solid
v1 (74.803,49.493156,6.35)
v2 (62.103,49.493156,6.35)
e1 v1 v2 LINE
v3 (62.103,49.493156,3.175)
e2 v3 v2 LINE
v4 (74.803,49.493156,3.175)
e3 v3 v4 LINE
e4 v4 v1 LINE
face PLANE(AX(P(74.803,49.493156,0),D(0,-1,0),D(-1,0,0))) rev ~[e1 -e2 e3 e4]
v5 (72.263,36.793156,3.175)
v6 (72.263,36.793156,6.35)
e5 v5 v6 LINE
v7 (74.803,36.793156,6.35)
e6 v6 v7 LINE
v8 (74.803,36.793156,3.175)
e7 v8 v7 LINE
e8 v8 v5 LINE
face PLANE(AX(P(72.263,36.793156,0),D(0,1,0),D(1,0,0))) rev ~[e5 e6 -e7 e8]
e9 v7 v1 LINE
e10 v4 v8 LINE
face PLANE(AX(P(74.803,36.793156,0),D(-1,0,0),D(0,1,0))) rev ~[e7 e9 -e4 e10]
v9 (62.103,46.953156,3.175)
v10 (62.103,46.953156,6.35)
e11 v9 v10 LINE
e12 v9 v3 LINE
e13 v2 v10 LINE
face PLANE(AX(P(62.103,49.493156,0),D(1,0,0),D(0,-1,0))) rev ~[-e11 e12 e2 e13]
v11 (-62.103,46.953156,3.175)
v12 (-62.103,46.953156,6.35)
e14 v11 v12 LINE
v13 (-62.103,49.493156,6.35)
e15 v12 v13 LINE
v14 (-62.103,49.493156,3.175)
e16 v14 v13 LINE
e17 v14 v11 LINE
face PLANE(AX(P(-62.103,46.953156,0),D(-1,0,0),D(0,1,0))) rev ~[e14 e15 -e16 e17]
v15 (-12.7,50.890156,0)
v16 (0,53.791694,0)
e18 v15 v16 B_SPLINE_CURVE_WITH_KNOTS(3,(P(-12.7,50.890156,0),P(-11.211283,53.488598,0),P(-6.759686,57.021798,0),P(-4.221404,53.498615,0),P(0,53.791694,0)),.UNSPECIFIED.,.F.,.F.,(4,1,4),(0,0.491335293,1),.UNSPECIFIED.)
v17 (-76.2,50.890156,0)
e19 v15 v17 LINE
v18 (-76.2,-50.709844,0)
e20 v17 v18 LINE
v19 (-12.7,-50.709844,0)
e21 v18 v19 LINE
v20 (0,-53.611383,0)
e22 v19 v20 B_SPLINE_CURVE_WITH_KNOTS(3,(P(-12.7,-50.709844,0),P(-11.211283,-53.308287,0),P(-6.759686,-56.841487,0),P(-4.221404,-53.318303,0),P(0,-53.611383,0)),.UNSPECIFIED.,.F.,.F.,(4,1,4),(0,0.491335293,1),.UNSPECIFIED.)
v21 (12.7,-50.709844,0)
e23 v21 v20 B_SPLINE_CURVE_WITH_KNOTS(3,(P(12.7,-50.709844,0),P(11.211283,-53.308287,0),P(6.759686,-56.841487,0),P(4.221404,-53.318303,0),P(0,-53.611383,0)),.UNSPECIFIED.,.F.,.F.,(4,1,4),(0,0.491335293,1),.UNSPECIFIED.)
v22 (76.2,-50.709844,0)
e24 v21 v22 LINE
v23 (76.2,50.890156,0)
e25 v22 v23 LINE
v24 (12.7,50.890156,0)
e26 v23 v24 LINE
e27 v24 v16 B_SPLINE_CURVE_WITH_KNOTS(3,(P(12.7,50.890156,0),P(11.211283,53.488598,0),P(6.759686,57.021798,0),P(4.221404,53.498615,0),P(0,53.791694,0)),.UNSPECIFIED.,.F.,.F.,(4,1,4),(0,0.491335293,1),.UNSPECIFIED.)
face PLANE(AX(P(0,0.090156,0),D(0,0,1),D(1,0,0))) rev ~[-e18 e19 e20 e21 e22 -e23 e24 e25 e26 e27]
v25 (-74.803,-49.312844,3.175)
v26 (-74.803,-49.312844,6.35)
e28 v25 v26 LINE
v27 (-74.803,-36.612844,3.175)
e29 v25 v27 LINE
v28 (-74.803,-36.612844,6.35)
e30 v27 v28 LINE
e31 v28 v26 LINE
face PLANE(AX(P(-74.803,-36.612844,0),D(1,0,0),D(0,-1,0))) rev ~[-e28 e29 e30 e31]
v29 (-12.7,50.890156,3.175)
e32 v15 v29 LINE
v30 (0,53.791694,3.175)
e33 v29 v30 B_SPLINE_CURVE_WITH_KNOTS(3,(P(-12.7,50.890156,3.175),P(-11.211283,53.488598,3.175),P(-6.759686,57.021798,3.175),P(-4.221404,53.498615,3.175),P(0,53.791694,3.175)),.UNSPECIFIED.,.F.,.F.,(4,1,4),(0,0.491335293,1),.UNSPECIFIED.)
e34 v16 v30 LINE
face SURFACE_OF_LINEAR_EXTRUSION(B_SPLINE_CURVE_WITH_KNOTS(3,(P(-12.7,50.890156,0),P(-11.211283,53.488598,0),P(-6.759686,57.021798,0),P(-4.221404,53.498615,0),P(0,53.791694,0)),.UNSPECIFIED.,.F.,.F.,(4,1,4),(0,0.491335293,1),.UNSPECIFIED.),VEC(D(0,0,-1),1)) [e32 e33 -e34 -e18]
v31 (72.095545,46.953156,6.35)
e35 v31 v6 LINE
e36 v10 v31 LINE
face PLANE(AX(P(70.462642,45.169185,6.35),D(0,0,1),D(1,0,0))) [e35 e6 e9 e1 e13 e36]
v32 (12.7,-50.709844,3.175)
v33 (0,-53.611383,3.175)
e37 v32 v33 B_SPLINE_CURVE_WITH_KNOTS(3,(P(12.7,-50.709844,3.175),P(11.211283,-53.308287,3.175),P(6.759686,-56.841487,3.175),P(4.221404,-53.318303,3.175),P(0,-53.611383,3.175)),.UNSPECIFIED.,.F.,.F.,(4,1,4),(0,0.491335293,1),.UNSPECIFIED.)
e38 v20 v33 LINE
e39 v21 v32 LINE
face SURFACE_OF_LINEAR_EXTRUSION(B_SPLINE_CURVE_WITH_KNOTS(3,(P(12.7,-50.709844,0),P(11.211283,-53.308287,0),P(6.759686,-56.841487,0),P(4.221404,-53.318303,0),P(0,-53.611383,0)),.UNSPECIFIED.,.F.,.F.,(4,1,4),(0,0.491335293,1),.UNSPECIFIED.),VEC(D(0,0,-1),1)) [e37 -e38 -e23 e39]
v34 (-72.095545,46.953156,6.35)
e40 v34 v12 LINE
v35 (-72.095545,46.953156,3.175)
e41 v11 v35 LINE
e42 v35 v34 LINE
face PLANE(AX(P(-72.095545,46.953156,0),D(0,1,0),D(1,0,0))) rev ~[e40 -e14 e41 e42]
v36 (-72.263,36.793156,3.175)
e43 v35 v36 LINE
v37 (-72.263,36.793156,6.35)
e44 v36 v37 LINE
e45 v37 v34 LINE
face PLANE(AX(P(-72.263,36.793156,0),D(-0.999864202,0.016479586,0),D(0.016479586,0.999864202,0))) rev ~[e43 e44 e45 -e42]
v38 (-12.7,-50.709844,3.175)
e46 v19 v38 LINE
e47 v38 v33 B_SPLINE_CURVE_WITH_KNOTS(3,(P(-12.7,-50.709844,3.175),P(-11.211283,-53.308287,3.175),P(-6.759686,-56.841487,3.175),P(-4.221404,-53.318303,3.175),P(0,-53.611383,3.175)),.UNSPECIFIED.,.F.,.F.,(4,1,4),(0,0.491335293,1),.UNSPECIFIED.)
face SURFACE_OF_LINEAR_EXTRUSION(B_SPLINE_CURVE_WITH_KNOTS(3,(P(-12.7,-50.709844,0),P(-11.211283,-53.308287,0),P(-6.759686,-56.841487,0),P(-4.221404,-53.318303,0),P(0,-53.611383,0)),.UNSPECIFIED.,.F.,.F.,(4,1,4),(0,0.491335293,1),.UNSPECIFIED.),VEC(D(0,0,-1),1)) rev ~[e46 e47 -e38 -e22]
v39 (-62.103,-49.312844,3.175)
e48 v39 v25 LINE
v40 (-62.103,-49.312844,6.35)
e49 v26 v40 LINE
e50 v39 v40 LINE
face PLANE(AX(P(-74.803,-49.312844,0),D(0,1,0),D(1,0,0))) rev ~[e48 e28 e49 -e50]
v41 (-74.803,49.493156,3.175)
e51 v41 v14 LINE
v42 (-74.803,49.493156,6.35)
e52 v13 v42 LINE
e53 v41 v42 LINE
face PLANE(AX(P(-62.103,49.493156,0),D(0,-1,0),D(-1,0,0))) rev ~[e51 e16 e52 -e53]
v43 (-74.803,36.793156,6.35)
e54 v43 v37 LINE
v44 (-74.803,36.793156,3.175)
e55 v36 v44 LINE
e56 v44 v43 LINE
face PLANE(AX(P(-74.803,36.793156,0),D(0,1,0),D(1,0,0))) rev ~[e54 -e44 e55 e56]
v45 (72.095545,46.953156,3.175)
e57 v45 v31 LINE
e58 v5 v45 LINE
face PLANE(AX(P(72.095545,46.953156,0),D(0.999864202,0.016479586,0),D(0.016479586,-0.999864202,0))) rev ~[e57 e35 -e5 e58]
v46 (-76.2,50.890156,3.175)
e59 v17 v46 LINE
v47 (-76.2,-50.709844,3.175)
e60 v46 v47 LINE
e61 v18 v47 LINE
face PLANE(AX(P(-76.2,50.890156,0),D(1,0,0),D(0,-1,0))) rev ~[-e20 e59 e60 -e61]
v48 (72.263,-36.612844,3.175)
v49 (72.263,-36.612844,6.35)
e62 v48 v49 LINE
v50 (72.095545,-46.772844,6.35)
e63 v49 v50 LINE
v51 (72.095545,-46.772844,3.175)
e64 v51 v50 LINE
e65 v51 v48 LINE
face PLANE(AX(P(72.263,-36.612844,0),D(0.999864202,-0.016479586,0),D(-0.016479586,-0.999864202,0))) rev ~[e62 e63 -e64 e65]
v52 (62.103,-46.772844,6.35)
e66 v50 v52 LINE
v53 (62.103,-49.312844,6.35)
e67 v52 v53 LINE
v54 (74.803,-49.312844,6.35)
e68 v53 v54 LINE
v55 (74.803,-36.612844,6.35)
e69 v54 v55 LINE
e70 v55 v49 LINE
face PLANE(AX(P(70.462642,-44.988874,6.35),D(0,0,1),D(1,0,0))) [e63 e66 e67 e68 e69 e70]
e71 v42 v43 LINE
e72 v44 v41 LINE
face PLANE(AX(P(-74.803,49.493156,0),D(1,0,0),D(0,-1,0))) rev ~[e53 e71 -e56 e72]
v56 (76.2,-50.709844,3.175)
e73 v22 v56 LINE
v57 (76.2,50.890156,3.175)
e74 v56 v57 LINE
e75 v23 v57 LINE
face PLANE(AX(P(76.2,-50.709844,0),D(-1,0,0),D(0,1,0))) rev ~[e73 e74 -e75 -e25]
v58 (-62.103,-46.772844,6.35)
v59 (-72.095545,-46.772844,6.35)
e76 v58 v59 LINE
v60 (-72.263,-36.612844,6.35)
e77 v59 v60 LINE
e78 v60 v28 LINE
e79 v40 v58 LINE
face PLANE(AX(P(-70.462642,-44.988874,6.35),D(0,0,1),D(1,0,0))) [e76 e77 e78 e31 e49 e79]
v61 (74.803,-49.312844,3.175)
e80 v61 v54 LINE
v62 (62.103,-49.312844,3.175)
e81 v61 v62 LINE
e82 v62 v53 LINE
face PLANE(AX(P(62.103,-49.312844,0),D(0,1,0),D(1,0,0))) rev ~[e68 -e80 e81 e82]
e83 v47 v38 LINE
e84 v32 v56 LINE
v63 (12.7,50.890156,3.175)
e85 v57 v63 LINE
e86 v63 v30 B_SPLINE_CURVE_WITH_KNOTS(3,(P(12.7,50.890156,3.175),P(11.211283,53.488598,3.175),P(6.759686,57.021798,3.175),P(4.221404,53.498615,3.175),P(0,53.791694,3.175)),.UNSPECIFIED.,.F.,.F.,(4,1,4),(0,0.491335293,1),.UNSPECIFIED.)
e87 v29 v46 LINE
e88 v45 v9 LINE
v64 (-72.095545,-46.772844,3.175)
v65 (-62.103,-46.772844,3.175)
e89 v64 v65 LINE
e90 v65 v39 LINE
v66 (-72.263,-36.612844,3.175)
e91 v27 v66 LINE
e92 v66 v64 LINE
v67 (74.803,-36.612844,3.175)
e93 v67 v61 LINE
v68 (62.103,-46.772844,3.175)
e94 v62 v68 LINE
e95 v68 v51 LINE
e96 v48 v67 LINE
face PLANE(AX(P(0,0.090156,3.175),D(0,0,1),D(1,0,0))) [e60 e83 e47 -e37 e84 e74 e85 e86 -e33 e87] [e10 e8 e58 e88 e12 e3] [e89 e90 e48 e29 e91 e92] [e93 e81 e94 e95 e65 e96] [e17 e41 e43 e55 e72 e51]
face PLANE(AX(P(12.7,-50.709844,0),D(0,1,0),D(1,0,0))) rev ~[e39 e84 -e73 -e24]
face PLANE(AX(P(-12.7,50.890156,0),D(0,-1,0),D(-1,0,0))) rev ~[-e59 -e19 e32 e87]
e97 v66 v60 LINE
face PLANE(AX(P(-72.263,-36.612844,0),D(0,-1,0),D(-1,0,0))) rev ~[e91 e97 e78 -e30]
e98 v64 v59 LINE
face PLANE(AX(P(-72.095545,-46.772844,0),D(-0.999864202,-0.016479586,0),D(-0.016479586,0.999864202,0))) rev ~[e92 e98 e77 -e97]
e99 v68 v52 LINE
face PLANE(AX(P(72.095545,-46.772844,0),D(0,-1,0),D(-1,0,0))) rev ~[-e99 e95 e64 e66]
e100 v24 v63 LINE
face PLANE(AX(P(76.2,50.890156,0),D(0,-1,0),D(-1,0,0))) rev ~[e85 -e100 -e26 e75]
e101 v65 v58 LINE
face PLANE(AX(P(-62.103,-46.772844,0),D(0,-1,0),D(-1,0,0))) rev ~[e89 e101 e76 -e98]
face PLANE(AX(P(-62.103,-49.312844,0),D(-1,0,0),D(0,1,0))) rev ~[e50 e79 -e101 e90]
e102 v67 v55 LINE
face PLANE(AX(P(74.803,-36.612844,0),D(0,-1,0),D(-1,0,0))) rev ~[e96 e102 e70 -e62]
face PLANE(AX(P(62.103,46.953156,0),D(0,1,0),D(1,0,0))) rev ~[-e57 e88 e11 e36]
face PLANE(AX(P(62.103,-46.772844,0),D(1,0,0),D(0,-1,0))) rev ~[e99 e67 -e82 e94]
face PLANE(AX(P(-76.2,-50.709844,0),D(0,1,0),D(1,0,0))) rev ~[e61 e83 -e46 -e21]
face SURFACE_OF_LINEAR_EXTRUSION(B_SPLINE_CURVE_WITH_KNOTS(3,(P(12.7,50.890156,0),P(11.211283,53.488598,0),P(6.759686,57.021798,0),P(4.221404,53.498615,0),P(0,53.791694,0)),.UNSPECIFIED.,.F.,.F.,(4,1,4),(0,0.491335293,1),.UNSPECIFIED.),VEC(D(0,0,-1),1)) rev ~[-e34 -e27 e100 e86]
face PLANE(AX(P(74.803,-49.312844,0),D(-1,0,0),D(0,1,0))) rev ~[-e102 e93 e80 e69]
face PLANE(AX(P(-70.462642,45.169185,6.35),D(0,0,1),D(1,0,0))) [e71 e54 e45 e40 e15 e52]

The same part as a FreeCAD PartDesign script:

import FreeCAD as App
import Part
import Sketcher

V = App.Vector
Q = App.Units.Quantity


def add_polygon(sketch, points):
    """Adds a closed chain of lines whose ends are joined by coincident constraints."""
    first, n = sketch.GeometryCount, len(points)
    for a, b in zip(points, points[1:] + points[:1]):
        sketch.addGeometry(Part.LineSegment(App.Vector(*a, 0), App.Vector(*b, 0)), False)
    for i in range(n):
        sketch.addConstraint(Sketcher.Constraint("Coincident", first + i, 2, first + (i + 1) % n, 1))

doc = App.newDocument("Part")
params = doc.addObject("Spreadsheet::Sheet", "Params")
for row, (alias, value) in enumerate([
    ("sketch1_width", "2.5 in"),
    ("sketch1_width2", "0.5 in"),
    ("sketch1_width3", "0.1 in"),
    ("pad1_length", "0.125 in"),
    ("sketch2_width", "0.5 in"),
    ("sketch2_width2", "0.1 in"),
    ("pad2_length", "0.25 in"),
], start=1):
    params.set(f"A{row}", alias)
    params.set(f"B{row}", "=" + value)
    params.setAlias(f"B{row}", alias)

body = doc.addObject("PartDesign::Body", "Body")

# Sketch on XY plane
sketch1 = body.newObject("Sketcher::SketchObject", "Sketch")
sketch1.AttachmentSupport = (doc.getObject("XY_Plane"), [""])
sketch1.MapMode = "FlatFace"
sketch1.addGeometry(Part.LineSegment(V(-76.2, 50.890156, 0), V(-76.2, -50.709844, 0)), False)  # 0
sketch1.addGeometry(Part.LineSegment(V(-76.2, -50.709844, 0), V(-12.7, -50.709844, 0)), False)  # 1
sketch1.addGeometry(Part.BSplineCurve([V(-12.7, -50.709844, 0), V(-11.211283, -53.308287, 0), V(-6.759686, -56.841487, 0), V(-4.221404, -53.318303, 0), V(0, -53.611383, 0)], [4, 1, 4], [0, 0.491335293, 1], False, 3, [1, 1, 1, 1, 1], False), False)  # 2
sketch1.addGeometry(Part.BSplineCurve([V(12.7, -50.709844, 0), V(11.211283, -53.308287, 0), V(6.759686, -56.841487, 0), V(4.221404, -53.318303, 0), V(0, -53.611383, 0)], [4, 1, 4], [0, 0.491335293, 1], False, 3, [1, 1, 1, 1, 1], False), False)  # 3
sketch1.addGeometry(Part.LineSegment(V(12.7, -50.709844, 0), V(76.2, -50.709844, 0)), False)  # 4
sketch1.addGeometry(Part.LineSegment(V(76.2, -50.709844, 0), V(76.2, 50.890156, 0)), False)  # 5
sketch1.addGeometry(Part.LineSegment(V(76.2, 50.890156, 0), V(12.7, 50.890156, 0)), False)  # 6
sketch1.addGeometry(Part.BSplineCurve([V(12.7, 50.890156, 0), V(11.211283, 53.488598, 0), V(6.759686, 57.021798, 0), V(4.221404, 53.498615, 0), V(0, 53.791694, 0)], [4, 1, 4], [0, 0.491335293, 1], False, 3, [1, 1, 1, 1, 1], False), False)  # 7
sketch1.addGeometry(Part.BSplineCurve([V(-12.7, 50.890156, 0), V(-11.211283, 53.488598, 0), V(-6.759686, 57.021798, 0), V(-4.221404, 53.498615, 0), V(0, 53.791694, 0)], [4, 1, 4], [0, 0.491335293, 1], False, 3, [1, 1, 1, 1, 1], False), False)  # 8
sketch1.addGeometry(Part.LineSegment(V(-12.7, 50.890156, 0), V(-76.2, 50.890156, 0)), False)  # 9
add_polygon(sketch1, [(-62.103, -46.772844), (-62.103, -49.312844), (-74.803, -49.312844), (-74.803, -36.612844), (-72.263, -36.612844), (-72.095545, -46.772844)])  # lines 10-15
add_polygon(sketch1, [(72.263, -36.612844), (74.803, -36.612844), (74.803, -49.312844), (62.103, -49.312844), (62.103, -46.772844), (72.095545, -46.772844)])  # lines 16-21
add_polygon(sketch1, [(-72.263, 36.793156), (-74.803, 36.793156), (-74.803, 49.493156), (-62.103, 49.493156), (-62.103, 46.953156), (-72.095545, 46.953156)])  # lines 22-27
add_polygon(sketch1, [(74.803, 36.793156), (72.263, 36.793156), (72.095545, 46.953156), (62.103, 46.953156), (62.103, 49.493156), (74.803, 49.493156)])  # lines 28-33
sketch1.addConstraint([
    Sketcher.Constraint("Block", 2),
    Sketcher.Constraint("Block", 3),
    Sketcher.Constraint("Block", 7),
    Sketcher.Constraint("Block", 8),
    Sketcher.Constraint("Coincident", 0, 2, 1, 1),
    Sketcher.Constraint("Coincident", 1, 2, 2, 1),
    Sketcher.Constraint("Coincident", 3, 1, 4, 1),
    Sketcher.Constraint("Coincident", 4, 2, 5, 1),
    Sketcher.Constraint("Coincident", 5, 2, 6, 1),
    Sketcher.Constraint("Coincident", 6, 2, 7, 1),
    Sketcher.Constraint("Coincident", 8, 1, 9, 1),
    Sketcher.Constraint("Coincident", 9, 2, 0, 1),
    Sketcher.Constraint("Vertical", 0),
    Sketcher.Constraint("Horizontal", 1),
    Sketcher.Constraint("Horizontal", 4),
    Sketcher.Constraint("Vertical", 5),
    Sketcher.Constraint("Horizontal", 6),
    Sketcher.Constraint("Horizontal", 9),
    Sketcher.Constraint("Vertical", 10),
    Sketcher.Constraint("Horizontal", 11),
    Sketcher.Constraint("Vertical", 12),
    Sketcher.Constraint("Horizontal", 13),
    Sketcher.Constraint("Horizontal", 15),
    Sketcher.Constraint("Horizontal", 16),
    Sketcher.Constraint("Vertical", 17),
    Sketcher.Constraint("Horizontal", 18),
    Sketcher.Constraint("Vertical", 19),
    Sketcher.Constraint("Horizontal", 20),
    Sketcher.Constraint("Horizontal", 22),
    Sketcher.Constraint("Vertical", 23),
    Sketcher.Constraint("Horizontal", 24),
    Sketcher.Constraint("Vertical", 25),
    Sketcher.Constraint("Horizontal", 26),
    Sketcher.Constraint("Horizontal", 28),
    Sketcher.Constraint("Horizontal", 30),
    Sketcher.Constraint("Vertical", 31),
    Sketcher.Constraint("Horizontal", 32),
    Sketcher.Constraint("Vertical", 33),
    Sketcher.Constraint("Symmetric", 12, 2, 16, 2, -2),
    Sketcher.Constraint("Symmetric", 10, 2, 18, 2, -2),
    Sketcher.Constraint("Symmetric", 14, 2, 20, 2, -2),
    Sketcher.Constraint("Symmetric", 27, 2, 28, 2, -2),
    Sketcher.Constraint("Symmetric", 26, 2, 29, 2, -2),
    Sketcher.Constraint("Symmetric", 24, 2, 31, 2, -2),
    Sketcher.Constraint("Parallel", 21, 27),
    Sketcher.Constraint("Parallel", 14, 29),
    Sketcher.Constraint("Vertical", 12, 2, 22, 2),
    Sketcher.Constraint("Vertical", 15, 2, 24, 2),
    Sketcher.Constraint("Vertical", 14, 2, 26, 2),
    Sketcher.Constraint("Vertical", 13, 2, 27, 2),
    Sketcher.Constraint("Vertical", 17, 2, 32, 2),
    Sketcher.Constraint("Equal", 1, 4),
    Sketcher.Constraint("Equal", 28, 10),
    Sketcher.Constraint("Equal", 32, 12),
    Sketcher.Constraint("Equal", 17, 23),
    Sketcher.Constraint("DistanceX", 1, 1, 1, 2, Q("2.5 in")),
    Sketcher.Constraint("DistanceX", 11, 2, 11, 1, Q("0.5 in")),
    Sketcher.Constraint("DistanceX", 13, 1, 13, 2, Q("0.1 in")),
    Sketcher.Constraint("DistanceX", 15, 2, 16, 2, Q("5.39 in")),
    Sketcher.Constraint("DistanceY", 12, 2, 22, 2, Q("2.89 in")),
    Sketcher.Constraint("DistanceY", 0, 2, 10, 2, Q("0.055 in")),
    Sketcher.Constraint("Distance", 14, Q("10.16138 mm")),
])
sketch1.setExpression("Constraints[79]", "Params.sketch1_width")
sketch1.setExpression("Constraints[80]", "Params.sketch1_width2")
sketch1.setExpression("Constraints[81]", "Params.sketch1_width3")
pad1 = body.newObject("PartDesign::Pad", "Pad")
pad1.Profile = sketch1
pad1.setExpression("Length", "Params.pad1_length")

# Sketch on XY plane
sketch2 = body.newObject("Sketcher::SketchObject", "Sketch001")
sketch2.AttachmentSupport = (doc.getObject("XY_Plane"), [""])
sketch2.MapMode = "FlatFace"
add_polygon(sketch2, [(-74.8, -36.6), (-74.8, -49.3), (-62.1, -49.3), (-62.1, -46.8), (-72.1, -46.8), (-72.3, -36.6)])  # lines 0-5
add_polygon(sketch2, [(-62.1, 49.5), (-74.8, 49.5), (-74.8, 36.8), (-72.3, 36.8), (-72.1, 47), (-62.1, 47)])  # lines 6-11
add_polygon(sketch2, [(62.1, -49.3), (74.8, -49.3), (74.8, -36.6), (72.3, -36.6), (72.1, -46.8), (62.1, -46.8)])  # lines 12-17
add_polygon(sketch2, [(62.1, 47), (72.1, 47), (72.3, 36.8), (74.8, 36.8), (74.8, 49.5), (62.1, 49.5)])  # lines 18-23
sketch2.addConstraint([
    Sketcher.Constraint("Vertical", 0),
    Sketcher.Constraint("Horizontal", 1),
    Sketcher.Constraint("Vertical", 2),
    Sketcher.Constraint("Horizontal", 3),
    Sketcher.Constraint("Horizontal", 5),
    Sketcher.Constraint("Horizontal", 6),
    Sketcher.Constraint("Vertical", 7),
    Sketcher.Constraint("Horizontal", 8),
    Sketcher.Constraint("Horizontal", 10),
    Sketcher.Constraint("Vertical", 11),
    Sketcher.Constraint("Horizontal", 12),
    Sketcher.Constraint("Vertical", 13),
    Sketcher.Constraint("Horizontal", 14),
    Sketcher.Constraint("Horizontal", 16),
    Sketcher.Constraint("Vertical", 17),
    Sketcher.Constraint("Horizontal", 18),
    Sketcher.Constraint("Horizontal", 20),
    Sketcher.Constraint("Vertical", 21),
    Sketcher.Constraint("Horizontal", 22),
    Sketcher.Constraint("Vertical", 23),
    Sketcher.Constraint("Symmetric", 0, 2, 12, 2, -2),
    Sketcher.Constraint("Symmetric", 4, 2, 14, 2, -2),
    Sketcher.Constraint("Symmetric", 3, 2, 15, 2, -2),
    Sketcher.Constraint("Symmetric", 9, 2, 18, 2, -2),
    Sketcher.Constraint("Symmetric", 8, 2, 19, 2, -2),
    Sketcher.Constraint("Symmetric", 6, 2, 21, 2, -2),
    Sketcher.Constraint("Parallel", 9, 15),
    Sketcher.Constraint("Vertical", 5, 2, 6, 2),
    Sketcher.Constraint("Vertical", 4, 2, 8, 2),
    Sketcher.Constraint("Vertical", 3, 2, 9, 2),
    Sketcher.Constraint("Vertical", 2, 2, 10, 2),
    Sketcher.Constraint("Vertical", 17, 2, 22, 2),
    Sketcher.Constraint("Equal", 6, 12),
    Sketcher.Constraint("Equal", 22, 0),
    Sketcher.Constraint("Equal", 20, 2),
    Sketcher.Constraint("Equal", 0, 7),
    Sketcher.Constraint("DistanceX", 1, 1, 1, 2, Q("0.5 in")),
    Sketcher.Constraint("DistanceX", 5, 2, 5, 1, Q("0.1 in")),
    Sketcher.Constraint("DistanceY", 5, 2, 6, 2, Q("3.39 in")),
    Sketcher.Constraint("DistanceX", 1, 2, 12, 2, Q("5.39 in")),
    Sketcher.Constraint("Distance", 4, Q("10.16138 mm")),
    Sketcher.Constraint("DistanceY", 0, 2, -1, 1, Q("49.312844 mm")),
])
sketch2.setExpression("Constraints[60]", "Params.sketch2_width")
sketch2.setExpression("Constraints[61]", "Params.sketch2_width2")
pad2 = body.newObject("PartDesign::Pad", "Pad001")
pad2.Profile = sketch2
pad2.setExpression("Length", "Params.pad2_length")

doc.recompute()
